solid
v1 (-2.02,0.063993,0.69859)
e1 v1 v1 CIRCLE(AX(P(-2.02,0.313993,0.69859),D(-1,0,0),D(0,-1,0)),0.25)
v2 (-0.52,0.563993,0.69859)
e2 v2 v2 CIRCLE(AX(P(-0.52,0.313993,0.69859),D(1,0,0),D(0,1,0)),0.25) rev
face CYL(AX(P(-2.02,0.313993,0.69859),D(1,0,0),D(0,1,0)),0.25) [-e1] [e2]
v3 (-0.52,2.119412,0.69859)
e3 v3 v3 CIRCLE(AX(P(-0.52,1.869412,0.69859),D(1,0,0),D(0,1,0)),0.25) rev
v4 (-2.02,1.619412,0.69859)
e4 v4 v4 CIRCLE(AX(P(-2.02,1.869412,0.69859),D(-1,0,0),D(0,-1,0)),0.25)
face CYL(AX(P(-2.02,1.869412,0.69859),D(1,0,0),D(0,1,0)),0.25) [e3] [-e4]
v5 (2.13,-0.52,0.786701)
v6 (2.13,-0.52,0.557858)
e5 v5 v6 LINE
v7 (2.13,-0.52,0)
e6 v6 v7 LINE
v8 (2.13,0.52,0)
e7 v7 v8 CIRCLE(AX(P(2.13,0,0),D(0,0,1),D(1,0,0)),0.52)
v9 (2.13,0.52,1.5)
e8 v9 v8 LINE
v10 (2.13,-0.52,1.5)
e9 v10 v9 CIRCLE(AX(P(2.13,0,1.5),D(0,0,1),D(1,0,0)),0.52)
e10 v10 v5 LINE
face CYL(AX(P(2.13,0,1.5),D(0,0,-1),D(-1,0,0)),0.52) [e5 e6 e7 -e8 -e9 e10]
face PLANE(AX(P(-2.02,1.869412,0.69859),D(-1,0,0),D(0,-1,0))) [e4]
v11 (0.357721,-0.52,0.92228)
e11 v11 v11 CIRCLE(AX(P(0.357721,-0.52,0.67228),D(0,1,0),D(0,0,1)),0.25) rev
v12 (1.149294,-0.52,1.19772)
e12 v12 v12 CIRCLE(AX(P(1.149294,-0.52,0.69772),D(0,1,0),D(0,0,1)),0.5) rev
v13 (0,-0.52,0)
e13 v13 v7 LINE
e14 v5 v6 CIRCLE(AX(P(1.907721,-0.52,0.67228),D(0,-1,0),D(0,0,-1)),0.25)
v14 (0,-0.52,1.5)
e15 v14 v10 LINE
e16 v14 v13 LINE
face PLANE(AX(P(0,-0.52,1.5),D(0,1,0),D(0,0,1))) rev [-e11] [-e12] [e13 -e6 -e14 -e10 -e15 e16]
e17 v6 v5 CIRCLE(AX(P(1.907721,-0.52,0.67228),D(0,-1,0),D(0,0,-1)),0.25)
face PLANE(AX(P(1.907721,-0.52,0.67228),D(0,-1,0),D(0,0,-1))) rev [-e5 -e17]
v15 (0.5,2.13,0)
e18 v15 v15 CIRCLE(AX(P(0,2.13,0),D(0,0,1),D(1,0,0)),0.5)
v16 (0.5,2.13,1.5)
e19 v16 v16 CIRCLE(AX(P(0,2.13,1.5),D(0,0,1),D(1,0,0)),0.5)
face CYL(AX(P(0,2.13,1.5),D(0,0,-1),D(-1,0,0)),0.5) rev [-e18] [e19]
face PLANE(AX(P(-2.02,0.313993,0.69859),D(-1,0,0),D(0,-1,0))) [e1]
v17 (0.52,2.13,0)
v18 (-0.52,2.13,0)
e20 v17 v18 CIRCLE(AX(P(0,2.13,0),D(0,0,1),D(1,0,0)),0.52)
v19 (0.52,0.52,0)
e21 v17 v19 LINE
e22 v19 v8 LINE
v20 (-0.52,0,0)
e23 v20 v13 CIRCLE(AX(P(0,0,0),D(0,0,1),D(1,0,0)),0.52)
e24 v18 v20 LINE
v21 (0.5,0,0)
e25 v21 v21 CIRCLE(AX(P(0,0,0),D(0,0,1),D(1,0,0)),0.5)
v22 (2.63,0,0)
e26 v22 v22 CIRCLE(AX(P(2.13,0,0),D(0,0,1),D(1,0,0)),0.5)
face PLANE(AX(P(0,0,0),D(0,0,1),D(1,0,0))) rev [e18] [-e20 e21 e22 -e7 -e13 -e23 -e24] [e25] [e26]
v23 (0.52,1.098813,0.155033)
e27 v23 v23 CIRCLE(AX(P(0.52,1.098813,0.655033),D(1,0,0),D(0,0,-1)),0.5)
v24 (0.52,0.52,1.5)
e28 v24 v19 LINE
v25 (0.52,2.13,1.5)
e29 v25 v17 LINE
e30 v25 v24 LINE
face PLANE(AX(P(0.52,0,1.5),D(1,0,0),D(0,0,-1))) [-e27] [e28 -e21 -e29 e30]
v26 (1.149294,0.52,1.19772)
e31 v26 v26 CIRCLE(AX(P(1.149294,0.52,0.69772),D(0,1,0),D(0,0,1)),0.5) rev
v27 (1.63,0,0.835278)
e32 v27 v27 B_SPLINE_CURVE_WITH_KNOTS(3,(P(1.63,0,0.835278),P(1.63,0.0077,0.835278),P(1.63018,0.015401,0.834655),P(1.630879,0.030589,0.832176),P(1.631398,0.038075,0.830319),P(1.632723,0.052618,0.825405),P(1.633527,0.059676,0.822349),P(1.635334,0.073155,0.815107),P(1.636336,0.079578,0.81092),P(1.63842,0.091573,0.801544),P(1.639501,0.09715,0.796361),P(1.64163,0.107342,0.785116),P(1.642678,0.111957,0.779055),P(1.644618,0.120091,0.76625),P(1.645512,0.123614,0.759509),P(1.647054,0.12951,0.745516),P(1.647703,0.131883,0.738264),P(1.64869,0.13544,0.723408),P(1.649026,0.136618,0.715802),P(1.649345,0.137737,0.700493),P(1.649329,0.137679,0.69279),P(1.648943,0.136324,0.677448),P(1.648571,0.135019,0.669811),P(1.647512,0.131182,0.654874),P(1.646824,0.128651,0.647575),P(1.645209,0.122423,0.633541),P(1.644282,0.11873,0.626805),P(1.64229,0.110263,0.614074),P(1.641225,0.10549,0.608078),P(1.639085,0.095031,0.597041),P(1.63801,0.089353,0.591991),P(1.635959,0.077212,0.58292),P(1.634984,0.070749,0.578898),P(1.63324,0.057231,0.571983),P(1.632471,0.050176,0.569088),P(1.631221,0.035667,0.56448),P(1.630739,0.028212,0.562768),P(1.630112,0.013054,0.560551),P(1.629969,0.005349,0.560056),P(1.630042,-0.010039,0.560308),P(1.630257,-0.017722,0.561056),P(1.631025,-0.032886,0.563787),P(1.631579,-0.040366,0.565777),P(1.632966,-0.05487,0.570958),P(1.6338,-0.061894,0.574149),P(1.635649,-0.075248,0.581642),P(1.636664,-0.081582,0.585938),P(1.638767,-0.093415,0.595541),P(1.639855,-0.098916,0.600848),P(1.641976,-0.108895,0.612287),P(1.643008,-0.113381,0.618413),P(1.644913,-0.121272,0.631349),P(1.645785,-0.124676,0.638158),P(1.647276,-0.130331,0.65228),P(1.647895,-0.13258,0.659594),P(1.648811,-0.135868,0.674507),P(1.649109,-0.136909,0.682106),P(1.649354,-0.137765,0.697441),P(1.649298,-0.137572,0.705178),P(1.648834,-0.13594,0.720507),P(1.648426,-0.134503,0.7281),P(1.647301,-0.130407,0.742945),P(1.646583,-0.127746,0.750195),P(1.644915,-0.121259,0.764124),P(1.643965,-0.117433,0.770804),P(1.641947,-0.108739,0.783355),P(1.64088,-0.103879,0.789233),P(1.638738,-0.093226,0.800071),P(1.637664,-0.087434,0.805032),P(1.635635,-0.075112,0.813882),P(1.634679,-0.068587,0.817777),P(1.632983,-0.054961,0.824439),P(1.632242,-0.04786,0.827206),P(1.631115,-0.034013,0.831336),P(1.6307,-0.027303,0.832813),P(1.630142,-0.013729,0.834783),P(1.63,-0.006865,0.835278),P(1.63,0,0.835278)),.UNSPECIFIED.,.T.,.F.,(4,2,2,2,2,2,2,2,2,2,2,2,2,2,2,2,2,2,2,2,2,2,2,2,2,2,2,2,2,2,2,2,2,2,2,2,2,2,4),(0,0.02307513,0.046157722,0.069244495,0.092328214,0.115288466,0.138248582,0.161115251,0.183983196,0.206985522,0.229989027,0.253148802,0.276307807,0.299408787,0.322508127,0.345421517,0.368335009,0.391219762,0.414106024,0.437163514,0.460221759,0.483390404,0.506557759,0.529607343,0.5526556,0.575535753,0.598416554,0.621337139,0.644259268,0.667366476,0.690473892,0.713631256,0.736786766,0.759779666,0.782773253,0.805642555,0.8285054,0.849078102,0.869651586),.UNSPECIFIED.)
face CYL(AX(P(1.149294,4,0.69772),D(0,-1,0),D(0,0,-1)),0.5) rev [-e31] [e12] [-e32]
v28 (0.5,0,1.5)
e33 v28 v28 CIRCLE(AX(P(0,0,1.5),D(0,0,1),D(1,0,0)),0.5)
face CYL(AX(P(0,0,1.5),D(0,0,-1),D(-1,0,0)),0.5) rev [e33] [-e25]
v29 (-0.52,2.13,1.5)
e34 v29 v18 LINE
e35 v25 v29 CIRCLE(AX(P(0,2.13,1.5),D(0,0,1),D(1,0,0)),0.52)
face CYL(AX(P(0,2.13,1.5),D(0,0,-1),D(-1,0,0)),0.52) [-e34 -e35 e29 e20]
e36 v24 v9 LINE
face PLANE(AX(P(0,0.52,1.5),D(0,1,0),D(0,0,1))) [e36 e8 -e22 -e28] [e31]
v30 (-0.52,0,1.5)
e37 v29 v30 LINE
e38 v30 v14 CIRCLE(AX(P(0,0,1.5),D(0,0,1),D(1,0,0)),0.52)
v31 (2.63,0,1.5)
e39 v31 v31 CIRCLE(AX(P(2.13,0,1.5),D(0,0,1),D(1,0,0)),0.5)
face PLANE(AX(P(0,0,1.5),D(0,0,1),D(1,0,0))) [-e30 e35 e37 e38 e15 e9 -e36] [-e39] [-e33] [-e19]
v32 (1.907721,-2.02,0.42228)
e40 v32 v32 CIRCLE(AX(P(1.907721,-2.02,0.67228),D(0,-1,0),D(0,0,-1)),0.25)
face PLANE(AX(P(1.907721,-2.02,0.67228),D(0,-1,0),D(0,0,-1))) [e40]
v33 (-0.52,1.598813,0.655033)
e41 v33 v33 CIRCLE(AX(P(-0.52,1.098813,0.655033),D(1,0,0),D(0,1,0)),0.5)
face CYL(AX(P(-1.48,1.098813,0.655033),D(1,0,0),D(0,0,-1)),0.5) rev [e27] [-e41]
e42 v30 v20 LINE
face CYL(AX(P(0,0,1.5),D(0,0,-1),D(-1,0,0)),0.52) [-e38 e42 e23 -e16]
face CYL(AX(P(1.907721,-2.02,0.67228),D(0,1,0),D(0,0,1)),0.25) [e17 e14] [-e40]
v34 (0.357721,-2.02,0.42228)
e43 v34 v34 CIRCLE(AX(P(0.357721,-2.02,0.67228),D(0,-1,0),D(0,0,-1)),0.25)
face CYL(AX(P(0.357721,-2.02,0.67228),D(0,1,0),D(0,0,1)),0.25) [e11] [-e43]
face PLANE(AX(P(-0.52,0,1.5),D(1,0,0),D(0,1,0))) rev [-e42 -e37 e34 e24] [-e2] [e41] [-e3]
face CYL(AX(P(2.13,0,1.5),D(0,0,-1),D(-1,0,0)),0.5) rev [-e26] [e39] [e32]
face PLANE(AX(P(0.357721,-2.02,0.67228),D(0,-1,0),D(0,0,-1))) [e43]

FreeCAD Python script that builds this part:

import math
import FreeCAD as App
import Part
import Sketcher

V = App.Vector

doc = App.newDocument("Part")
body = doc.addObject("PartDesign::Body", "Body")

sketch1 = doc.addObject("Sketcher::SketchObject", "Sketch")
body.addObject(sketch1)
sketch1.AttachmentSupport = (doc.XY_Plane, [""])
sketch1.MapMode = "FlatFace"
sketch1.addGeometry(Part.LineSegment(V(-0.5, 2.1, 0), V(-0.5, 0, 0)), False)
sketch1.addGeometry(Part.ArcOfCircle(Part.Circle(V(0, 0, 0), V(0, 0, 1), 0.5), math.radians(180), math.radians(270)), False)
sketch1.addGeometry(Part.LineSegment(V(0, -0.5, 0), V(2.1, -0.5, 0)), False)
sketch1.addGeometry(Part.ArcOfCircle(Part.Circle(V(2.1, 0, 0), V(0, 0, 1), 0.5), math.radians(-90), math.radians(90)), False)
sketch1.addGeometry(Part.LineSegment(V(2.1, 0.5, 0), V(0.5, 0.5, 0)), False)
sketch1.addGeometry(Part.LineSegment(V(0.5, 0.5, 0), V(0.5, 2.1, 0)), False)
sketch1.addGeometry(Part.ArcOfCircle(Part.Circle(V(0, 2.1, 0), V(0, 0, 1), 0.5), math.radians(0), math.radians(180)), False)
sketch1.addGeometry(Part.Circle(V(0, 2.1, 0), V(0, 0, 1), 0.5), False)
sketch1.addGeometry(Part.Circle(V(0, 0, 0), V(0, 0, 1), 0.5), False)
sketch1.addGeometry(Part.Circle(V(2.1, 0, 0), V(0, 0, 1), 0.5), False)
sketch1.addConstraint(Sketcher.Constraint("Tangent", 0, 2, 1, 1))
sketch1.addConstraint(Sketcher.Constraint("Tangent", 1, 2, 2, 1))
sketch1.addConstraint(Sketcher.Constraint("Tangent", 2, 2, 3, 1))
sketch1.addConstraint(Sketcher.Constraint("Tangent", 3, 2, 4, 1))
sketch1.addConstraint(Sketcher.Constraint("Coincident", 4, 2, 5, 1))
sketch1.addConstraint(Sketcher.Constraint("Tangent", 5, 2, 6, 1))
sketch1.addConstraint(Sketcher.Constraint("Tangent", 6, 2, 0, 1))
sketch1.addConstraint(Sketcher.Constraint("Vertical", 0))
sketch1.addConstraint(Sketcher.Constraint("Horizontal", 2))
sketch1.addConstraint(Sketcher.Constraint("Horizontal", 4))
sketch1.addConstraint(Sketcher.Constraint("Vertical", 5))
sketch1.addConstraint(Sketcher.Constraint("Coincident", 1, 3, -1, 1))
sketch1.addConstraint(Sketcher.Constraint("Coincident", 8, 3, -1, 1))
sketch1.addConstraint(Sketcher.Constraint("Coincident", 7, 3, 6, 3))
sketch1.addConstraint(Sketcher.Constraint("Coincident", 9, 3, 3, 3))
sketch1.addConstraint(Sketcher.Constraint("Equal", 1, 3))
sketch1.addConstraint(Sketcher.Constraint("Equal", 3, 6))
sketch1.addConstraint(Sketcher.Constraint("Equal", 7, 8))
sketch1.addConstraint(Sketcher.Constraint("Equal", 8, 9))
sketch1.addConstraint(Sketcher.Constraint("Equal", 2, 0))
sketch1.addConstraint(Sketcher.Constraint("Diameter", 7, 1.0))
sketch1.addConstraint(Sketcher.Constraint("Radius", 1, 0.52))
sketch1.addConstraint(Sketcher.Constraint("DistanceX", 2, 1, 2, 2, 2.13))
pad1 = doc.addObject("PartDesign::Pad", "Pad")
body.addObject(pad1)
pad1.Profile = sketch1
pad1.Length = 1.5

sketch2 = doc.addObject("Sketcher::SketchObject", "Sketch001")
body.addObject(sketch2)
sketch2.AttachmentSupport = (doc.YZ_Plane, [""])
sketch2.MapMode = "FlatFace"
sketch2.AttachmentOffset = App.Placement(V(0, 0, 0.52), App.Rotation())
sketch2.addGeometry(Part.Circle(V(1.1, 0.7, 0), V(0, 0, 1), 0.5), False)
sketch2.addConstraint(Sketcher.Constraint("Diameter", 0, 1.0))
sketch2.addConstraint(Sketcher.Constraint("DistanceX", -1, 1, 0, 3, 1.098813))
sketch2.addConstraint(Sketcher.Constraint("DistanceY", -1, 1, 0, 3, 0.655033))
pocket1 = doc.addObject("PartDesign::Pocket", "Pocket")
body.addObject(pocket1)
pocket1.Profile = sketch2
pocket1.Length = 2

sketch3 = doc.addObject("Sketcher::SketchObject", "Sketch002")
body.addObject(sketch3)
sketch3.AttachmentSupport = (doc.XZ_Plane, [""])
sketch3.MapMode = "FlatFace"
sketch3.addGeometry(Part.Circle(V(1.1, 0.7, 0), V(0, 0, 1), 0.5), False)
sketch3.addConstraint(Sketcher.Constraint("Diameter", 0, 1.0))
sketch3.addConstraint(Sketcher.Constraint("DistanceY", -1, 1, 0, 3, 0.69772))
sketch3.addConstraint(Sketcher.Constraint("DistanceX", -1, 1, 0, 3, 1.149294))
pocket2 = doc.addObject("PartDesign::Pocket", "Pocket001")
body.addObject(pocket2)
pocket2.Profile = sketch3
pocket2.Type = "ThroughAll"
pocket2.Midplane = True

sketch4 = doc.addObject("Sketcher::SketchObject", "Sketch003")
body.addObject(sketch4)
sketch4.AttachmentSupport = (doc.YZ_Plane, [""])
sketch4.MapMode = "FlatFace"
sketch4.AttachmentOffset = App.Placement(V(0, 0, -0.52), App.Rotation())
sketch4.addGeometry(Part.Circle(V(1.87, 0.7, 0), V(0, 0, 1), 0.25), False)
sketch4.addGeometry(Part.Circle(V(0.31, 0.7, 0), V(0, 0, 1), 0.25), False)
sketch4.addConstraint(Sketcher.Constraint("Equal", 0, 1))
sketch4.addConstraint(Sketcher.Constraint("Horizontal", 0, 3, 1, 3))
sketch4.addConstraint(Sketcher.Constraint("Diameter", 0, 0.5))
sketch4.addConstraint(Sketcher.Constraint("DistanceY", -1, 1, 0, 3, 0.69859))
sketch4.addConstraint(Sketcher.Constraint("DistanceX", 1, 3, 0, 3, 1.555419))
sketch4.addConstraint(Sketcher.Constraint("DistanceX", -1, 1, 0, 3, 1.869412))
pad2 = doc.addObject("PartDesign::Pad", "Pad001")
body.addObject(pad2)
pad2.Profile = sketch4
pad2.Length = 1.5
pad2.Reversed = True

sketch5 = doc.addObject("Sketcher::SketchObject", "Sketch004")
body.addObject(sketch5)
sketch5.AttachmentSupport = (doc.XZ_Plane, [""])
sketch5.MapMode = "FlatFace"
sketch5.AttachmentOffset = App.Placement(V(0, 0, 0.52), App.Rotation())
sketch5.addGeometry(Part.Circle(V(1.91, 0.67, 0), V(0, 0, 1), 0.25), False)
sketch5.addGeometry(Part.Circle(V(0.36, 0.67, 0), V(0, 0, 1), 0.25), False)
sketch5.addConstraint(Sketcher.Constraint("Equal", 0, 1))
sketch5.addConstraint(Sketcher.Constraint("Horizontal", 0, 3, 1, 3))
sketch5.addConstraint(Sketcher.Constraint("Diameter", 0, 0.5))
sketch5.addConstraint(Sketcher.Constraint("DistanceX", 1, 3, 0, 3, 1.55))
sketch5.addConstraint(Sketcher.Constraint("DistanceX", -1, 1, 0, 3, 1.907721))
sketch5.addConstraint(Sketcher.Constraint("DistanceY", -1, 1, 0, 3, 0.67228))
pad3 = doc.addObject("PartDesign::Pad", "Pad002")
body.addObject(pad3)
pad3.Profile = sketch5
pad3.Length = 1.5

doc.recompute()
